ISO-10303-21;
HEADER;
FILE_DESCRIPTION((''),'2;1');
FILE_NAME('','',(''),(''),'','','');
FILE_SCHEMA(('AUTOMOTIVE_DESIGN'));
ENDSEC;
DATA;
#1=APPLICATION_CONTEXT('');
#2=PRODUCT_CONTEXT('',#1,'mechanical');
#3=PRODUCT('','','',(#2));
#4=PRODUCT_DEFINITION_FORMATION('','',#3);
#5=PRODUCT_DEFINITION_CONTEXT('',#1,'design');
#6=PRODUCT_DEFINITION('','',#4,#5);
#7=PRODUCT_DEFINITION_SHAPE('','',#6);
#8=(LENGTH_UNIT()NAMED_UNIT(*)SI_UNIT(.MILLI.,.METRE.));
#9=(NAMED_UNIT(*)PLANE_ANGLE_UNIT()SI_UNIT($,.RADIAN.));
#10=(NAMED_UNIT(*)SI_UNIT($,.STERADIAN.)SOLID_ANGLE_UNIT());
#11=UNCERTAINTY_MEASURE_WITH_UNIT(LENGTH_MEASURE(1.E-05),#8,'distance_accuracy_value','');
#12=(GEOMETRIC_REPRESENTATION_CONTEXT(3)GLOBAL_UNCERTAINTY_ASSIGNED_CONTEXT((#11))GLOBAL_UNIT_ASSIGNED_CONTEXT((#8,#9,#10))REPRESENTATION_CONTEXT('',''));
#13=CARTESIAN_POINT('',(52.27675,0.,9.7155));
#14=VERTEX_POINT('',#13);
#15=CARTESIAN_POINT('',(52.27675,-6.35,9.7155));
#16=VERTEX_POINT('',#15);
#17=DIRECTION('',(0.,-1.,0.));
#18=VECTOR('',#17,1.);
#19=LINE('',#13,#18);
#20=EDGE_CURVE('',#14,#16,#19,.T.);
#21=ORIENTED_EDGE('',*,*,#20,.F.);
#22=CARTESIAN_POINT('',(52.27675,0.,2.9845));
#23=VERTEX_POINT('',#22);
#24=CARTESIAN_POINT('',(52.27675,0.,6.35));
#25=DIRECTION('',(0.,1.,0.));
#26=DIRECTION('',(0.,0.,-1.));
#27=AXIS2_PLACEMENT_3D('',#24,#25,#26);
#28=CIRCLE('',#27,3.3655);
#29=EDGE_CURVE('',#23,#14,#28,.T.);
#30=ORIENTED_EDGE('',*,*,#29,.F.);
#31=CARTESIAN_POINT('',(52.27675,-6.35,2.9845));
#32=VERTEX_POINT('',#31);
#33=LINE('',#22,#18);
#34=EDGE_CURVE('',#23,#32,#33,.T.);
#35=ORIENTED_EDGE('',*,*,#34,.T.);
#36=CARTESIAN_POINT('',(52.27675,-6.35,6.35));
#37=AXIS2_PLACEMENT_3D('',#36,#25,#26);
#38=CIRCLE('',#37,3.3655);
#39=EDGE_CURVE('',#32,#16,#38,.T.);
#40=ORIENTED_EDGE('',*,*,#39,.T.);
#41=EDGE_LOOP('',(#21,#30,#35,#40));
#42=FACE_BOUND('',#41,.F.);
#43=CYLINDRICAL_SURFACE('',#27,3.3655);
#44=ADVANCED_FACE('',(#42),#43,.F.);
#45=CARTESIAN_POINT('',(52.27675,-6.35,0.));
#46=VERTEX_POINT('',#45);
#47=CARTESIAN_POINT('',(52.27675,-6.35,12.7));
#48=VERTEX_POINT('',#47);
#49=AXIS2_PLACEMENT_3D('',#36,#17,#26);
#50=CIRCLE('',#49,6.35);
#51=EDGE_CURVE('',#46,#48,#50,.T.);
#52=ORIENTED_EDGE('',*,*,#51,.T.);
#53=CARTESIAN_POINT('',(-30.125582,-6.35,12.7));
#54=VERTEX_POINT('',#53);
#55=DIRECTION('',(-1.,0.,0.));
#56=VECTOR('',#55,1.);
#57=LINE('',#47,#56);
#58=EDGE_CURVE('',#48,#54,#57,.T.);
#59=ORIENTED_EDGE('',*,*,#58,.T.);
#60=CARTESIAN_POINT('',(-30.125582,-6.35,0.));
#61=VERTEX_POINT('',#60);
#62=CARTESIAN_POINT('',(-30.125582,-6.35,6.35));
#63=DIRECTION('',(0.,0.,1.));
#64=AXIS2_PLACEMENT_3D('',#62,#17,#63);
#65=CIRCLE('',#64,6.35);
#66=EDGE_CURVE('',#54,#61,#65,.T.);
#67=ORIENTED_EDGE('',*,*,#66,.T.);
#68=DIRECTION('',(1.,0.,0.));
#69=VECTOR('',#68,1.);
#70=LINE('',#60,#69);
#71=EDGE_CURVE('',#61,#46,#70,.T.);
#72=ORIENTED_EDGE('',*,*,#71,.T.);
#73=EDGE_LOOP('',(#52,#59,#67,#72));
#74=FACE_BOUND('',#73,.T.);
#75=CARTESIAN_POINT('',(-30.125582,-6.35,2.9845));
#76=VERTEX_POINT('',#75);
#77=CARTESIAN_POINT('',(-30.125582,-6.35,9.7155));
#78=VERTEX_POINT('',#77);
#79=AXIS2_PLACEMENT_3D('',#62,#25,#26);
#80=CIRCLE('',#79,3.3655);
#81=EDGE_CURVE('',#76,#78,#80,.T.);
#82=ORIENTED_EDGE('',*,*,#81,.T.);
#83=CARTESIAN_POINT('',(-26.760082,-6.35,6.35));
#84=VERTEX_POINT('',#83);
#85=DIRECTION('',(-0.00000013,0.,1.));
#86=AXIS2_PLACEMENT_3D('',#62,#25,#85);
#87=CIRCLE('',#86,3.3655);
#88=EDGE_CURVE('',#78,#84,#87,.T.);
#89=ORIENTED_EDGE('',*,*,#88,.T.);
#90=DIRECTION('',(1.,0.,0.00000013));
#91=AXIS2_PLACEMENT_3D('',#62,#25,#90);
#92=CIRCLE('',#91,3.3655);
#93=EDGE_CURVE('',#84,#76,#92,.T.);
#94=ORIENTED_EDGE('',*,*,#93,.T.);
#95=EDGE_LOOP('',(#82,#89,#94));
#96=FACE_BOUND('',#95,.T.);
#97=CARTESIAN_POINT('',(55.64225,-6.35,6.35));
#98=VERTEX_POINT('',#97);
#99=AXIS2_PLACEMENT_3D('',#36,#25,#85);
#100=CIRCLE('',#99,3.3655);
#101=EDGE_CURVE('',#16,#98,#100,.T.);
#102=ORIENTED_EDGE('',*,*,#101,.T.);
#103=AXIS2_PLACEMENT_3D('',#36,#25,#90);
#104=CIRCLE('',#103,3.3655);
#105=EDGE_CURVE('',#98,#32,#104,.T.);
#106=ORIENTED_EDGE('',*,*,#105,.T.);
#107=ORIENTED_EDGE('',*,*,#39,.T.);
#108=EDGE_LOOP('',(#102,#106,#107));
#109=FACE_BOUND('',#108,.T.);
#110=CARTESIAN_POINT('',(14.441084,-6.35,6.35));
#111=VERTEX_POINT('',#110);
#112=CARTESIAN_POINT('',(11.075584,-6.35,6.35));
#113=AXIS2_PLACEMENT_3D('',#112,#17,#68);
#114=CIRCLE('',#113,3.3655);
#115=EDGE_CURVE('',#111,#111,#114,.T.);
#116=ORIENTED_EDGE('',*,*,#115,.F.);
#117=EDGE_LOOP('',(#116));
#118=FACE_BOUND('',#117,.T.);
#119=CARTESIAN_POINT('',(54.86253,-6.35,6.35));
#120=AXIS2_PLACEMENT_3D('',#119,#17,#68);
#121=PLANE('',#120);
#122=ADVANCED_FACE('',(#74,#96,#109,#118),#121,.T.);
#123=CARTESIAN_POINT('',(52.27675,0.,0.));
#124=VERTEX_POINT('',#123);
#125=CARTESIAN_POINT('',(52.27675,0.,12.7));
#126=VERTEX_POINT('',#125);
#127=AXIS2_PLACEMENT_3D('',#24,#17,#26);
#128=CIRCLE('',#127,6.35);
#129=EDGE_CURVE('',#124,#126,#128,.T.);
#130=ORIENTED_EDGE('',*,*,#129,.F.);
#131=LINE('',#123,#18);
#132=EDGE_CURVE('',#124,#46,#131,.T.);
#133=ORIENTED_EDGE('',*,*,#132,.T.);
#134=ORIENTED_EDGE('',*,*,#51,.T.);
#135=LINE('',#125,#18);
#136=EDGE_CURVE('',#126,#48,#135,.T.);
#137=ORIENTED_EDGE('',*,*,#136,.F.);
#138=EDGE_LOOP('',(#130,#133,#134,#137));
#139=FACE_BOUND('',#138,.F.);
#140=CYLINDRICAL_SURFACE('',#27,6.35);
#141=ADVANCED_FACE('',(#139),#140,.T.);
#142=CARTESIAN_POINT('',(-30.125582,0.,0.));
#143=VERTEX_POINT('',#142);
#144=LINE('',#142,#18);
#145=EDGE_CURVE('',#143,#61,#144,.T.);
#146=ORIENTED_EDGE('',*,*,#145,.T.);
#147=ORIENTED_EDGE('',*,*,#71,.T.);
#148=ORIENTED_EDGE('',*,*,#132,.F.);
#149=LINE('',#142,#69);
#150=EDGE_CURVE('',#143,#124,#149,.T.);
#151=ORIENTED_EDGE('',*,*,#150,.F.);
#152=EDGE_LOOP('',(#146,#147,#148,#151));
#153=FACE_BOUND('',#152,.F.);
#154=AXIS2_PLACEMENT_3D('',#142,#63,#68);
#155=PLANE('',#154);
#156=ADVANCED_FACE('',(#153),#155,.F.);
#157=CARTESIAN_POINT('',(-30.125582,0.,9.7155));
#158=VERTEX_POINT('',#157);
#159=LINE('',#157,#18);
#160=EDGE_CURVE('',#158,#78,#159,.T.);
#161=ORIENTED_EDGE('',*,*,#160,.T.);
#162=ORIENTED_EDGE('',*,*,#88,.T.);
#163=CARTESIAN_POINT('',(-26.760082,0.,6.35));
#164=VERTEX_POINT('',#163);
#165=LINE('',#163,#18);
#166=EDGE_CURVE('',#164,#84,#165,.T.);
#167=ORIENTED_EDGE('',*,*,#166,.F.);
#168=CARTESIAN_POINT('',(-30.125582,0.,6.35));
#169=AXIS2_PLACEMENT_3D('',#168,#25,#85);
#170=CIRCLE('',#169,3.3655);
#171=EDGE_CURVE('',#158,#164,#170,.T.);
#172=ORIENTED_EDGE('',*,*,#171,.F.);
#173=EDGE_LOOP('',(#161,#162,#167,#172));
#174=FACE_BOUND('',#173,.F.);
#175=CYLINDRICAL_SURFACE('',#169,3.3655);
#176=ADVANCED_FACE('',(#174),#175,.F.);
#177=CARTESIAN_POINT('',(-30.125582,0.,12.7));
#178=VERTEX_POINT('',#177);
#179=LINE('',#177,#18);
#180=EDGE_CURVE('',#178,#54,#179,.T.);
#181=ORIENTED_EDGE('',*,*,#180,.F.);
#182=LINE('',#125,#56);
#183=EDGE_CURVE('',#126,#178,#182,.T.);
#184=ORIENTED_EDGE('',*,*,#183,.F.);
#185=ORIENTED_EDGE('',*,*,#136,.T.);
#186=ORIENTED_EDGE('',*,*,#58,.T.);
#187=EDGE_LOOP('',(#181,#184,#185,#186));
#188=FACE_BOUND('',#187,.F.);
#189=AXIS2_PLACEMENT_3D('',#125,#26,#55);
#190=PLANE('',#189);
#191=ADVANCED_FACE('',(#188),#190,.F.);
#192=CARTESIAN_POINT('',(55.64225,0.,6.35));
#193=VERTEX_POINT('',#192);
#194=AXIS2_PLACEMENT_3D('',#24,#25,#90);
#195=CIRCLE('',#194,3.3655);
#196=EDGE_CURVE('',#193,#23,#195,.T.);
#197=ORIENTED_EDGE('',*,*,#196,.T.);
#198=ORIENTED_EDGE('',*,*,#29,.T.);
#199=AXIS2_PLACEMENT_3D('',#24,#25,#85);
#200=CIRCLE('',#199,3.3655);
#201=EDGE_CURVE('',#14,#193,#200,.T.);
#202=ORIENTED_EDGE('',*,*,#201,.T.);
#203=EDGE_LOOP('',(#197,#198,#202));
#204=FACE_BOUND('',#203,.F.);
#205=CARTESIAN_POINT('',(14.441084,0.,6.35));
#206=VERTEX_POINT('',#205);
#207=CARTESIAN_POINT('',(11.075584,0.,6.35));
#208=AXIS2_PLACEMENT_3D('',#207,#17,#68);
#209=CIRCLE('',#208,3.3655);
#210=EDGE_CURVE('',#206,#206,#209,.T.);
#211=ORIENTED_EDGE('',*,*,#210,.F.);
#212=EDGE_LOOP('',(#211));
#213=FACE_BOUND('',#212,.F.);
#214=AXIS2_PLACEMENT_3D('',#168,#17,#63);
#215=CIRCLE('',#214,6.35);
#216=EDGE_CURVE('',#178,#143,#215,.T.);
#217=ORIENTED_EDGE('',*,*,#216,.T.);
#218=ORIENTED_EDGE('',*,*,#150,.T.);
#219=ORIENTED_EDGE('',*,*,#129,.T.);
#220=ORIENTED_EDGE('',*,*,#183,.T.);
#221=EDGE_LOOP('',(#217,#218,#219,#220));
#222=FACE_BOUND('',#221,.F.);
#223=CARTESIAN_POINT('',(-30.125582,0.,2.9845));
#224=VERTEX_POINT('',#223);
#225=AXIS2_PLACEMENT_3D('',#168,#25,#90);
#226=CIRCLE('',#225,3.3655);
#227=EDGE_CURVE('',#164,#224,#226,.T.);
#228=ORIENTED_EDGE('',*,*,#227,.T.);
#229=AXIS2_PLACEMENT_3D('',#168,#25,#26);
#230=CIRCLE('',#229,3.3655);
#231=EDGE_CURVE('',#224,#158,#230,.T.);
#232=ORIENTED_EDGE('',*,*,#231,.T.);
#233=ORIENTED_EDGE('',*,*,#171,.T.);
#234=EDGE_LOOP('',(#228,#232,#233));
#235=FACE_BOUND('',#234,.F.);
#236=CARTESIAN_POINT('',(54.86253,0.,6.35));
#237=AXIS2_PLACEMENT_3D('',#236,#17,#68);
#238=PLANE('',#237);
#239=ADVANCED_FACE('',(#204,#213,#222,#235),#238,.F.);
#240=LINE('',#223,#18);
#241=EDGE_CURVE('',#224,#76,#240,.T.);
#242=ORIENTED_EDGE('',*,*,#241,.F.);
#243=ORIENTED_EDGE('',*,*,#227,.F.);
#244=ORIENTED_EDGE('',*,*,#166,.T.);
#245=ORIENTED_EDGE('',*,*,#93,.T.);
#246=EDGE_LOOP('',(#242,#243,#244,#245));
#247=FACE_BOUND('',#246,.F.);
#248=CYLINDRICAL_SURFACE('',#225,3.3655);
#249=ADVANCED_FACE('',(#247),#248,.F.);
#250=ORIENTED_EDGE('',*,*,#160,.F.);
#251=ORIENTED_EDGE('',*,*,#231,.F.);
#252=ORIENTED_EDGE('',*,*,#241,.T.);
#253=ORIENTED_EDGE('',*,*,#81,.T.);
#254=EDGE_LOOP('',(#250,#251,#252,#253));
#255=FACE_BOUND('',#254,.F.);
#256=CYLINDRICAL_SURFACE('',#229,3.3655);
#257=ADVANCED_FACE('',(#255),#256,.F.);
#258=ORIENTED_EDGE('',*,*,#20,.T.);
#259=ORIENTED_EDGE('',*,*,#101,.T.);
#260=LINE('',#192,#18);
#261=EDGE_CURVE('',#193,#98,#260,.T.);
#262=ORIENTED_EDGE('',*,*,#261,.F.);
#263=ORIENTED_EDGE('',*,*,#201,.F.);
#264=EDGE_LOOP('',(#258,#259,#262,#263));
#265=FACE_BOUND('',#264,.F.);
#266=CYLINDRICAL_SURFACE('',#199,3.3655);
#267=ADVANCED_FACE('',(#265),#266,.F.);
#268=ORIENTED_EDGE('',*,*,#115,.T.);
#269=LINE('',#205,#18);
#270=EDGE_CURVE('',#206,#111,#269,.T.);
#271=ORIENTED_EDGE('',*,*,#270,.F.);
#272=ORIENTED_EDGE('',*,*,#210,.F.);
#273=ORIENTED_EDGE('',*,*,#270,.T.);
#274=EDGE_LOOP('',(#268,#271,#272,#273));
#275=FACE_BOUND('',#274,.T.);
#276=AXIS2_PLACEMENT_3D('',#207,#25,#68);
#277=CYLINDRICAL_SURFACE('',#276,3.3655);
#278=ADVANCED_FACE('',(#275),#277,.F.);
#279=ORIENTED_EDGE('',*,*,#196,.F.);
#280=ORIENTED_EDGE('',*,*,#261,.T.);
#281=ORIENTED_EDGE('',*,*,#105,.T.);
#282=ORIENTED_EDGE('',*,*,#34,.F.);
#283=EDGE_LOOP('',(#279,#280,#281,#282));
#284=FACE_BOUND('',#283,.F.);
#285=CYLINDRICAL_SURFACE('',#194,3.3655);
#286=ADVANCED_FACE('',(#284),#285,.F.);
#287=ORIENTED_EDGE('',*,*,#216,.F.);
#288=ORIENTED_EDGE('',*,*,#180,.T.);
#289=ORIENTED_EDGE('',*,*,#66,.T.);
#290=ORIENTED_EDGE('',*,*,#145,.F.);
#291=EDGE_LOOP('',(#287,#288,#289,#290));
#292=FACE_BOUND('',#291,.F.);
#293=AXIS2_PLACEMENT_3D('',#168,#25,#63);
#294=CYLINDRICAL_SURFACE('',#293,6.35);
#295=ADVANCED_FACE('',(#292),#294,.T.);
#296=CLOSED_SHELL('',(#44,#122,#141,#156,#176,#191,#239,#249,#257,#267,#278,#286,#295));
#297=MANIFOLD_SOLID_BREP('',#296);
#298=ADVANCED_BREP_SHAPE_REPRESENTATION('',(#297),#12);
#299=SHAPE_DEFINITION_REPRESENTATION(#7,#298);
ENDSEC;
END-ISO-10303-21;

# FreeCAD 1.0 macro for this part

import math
import FreeCAD as App
import Part
import Sketcher
from FreeCAD import Vector
Q = App.Units.Quantity

doc = App.newDocument("Part")
body = doc.addObject("PartDesign::Body", "Body")

# Sketch on XZ plane
sketch1 = doc.addObject("Sketcher::SketchObject", "Sketch")
body.addObject(sketch1)
sketch1.AttachmentSupport = (doc.XZ_Plane, [""])
sketch1.MapMode = "FlatFace"
sketch1.addGeometry([
    Part.ArcOfCircle(Part.Circle(Vector(52.27675, 6.35, 0), Vector(0, 0, 1), 6.35), math.radians(-90), math.radians(90)),  # 0
    Part.LineSegment(Vector(52.27675, 12.7, 0), Vector(-30.125582, 12.7, 0)),  # 1
    Part.ArcOfCircle(Part.Circle(Vector(-30.125582, 6.35, 0), Vector(0, 0, 1), 6.35), math.radians(90), math.radians(270)),  # 2
    Part.LineSegment(Vector(-30.125582, 0, 0), Vector(52.27675, 0, 0)),  # 3
    Part.ArcOfCircle(Part.Circle(Vector(-30.125582, 6.35, 0), Vector(0, 0, 1), 3.3655), math.radians(-90.000007), math.radians(0.000007)),  # 4
    Part.ArcOfCircle(Part.Circle(Vector(-30.125582, 6.35, 0), Vector(0, 0, 1), 3.3655), math.radians(90), math.radians(270)),  # 5
    Part.ArcOfCircle(Part.Circle(Vector(-30.125582, 6.35, 0), Vector(0, 0, 1), 3.3655), math.radians(-0.000007), math.radians(90.000007)),  # 6
    Part.Circle(Vector(11.075584, 6.35, 0), Vector(0, 0, 1), 3.3655),  # 7
    Part.ArcOfCircle(Part.Circle(Vector(52.27675, 6.35, 0), Vector(0, 0, 1), 3.3655), math.radians(-0.000007), math.radians(90.000007)),  # 8
    Part.ArcOfCircle(Part.Circle(Vector(52.27675, 6.35, 0), Vector(0, 0, 1), 3.3655), math.radians(-90.000007), math.radians(0.000007)),  # 9
    Part.ArcOfCircle(Part.Circle(Vector(52.27675, 6.35, 0), Vector(0, 0, 1), 3.3655), math.radians(90), math.radians(270)),  # 10
], False)
sketch1.addConstraint([
    Sketcher.Constraint("Tangent", 0, 2, 1, 1),
    Sketcher.Constraint("Tangent", 1, 2, 2, 1),
    Sketcher.Constraint("Tangent", 2, 2, 3, 1),
    Sketcher.Constraint("Tangent", 3, 2, 0, 1),
    Sketcher.Constraint("Tangent", 4, 1, 5, 2),
    Sketcher.Constraint("Tangent", 5, 1, 6, 2),
    Sketcher.Constraint("Tangent", 6, 1, 4, 2),
    Sketcher.Constraint("Tangent", 8, 1, 9, 2),
    Sketcher.Constraint("Tangent", 9, 1, 10, 2),
    Sketcher.Constraint("Tangent", 10, 1, 8, 2),
    Sketcher.Constraint("Horizontal", 1),
    Sketcher.Constraint("Horizontal", 3),
    Sketcher.Constraint("Coincident", 4, 3, 2, 3),
    Sketcher.Constraint("Coincident", 8, 3, 0, 3),
    Sketcher.Constraint("Equal", 6, 7),
    Sketcher.Constraint("Equal", 7, 8),
    Sketcher.Constraint("PointOnObject", 2, 2, -1),
    Sketcher.Constraint("Horizontal", 6, 3, 7, 3),
    Sketcher.Constraint("Horizontal", 10, 3, 6, 1),
    Sketcher.Constraint("Horizontal", 6, 1, 8, 1),
    Sketcher.Constraint("Vertical", 2, 2, 4, 1),
    Sketcher.Constraint("Vertical", 4, 1, 5, 1),
    Sketcher.Constraint("Vertical", 3, 2, 9, 1),
    Sketcher.Constraint("Vertical", 9, 1, 10, 1),
    Sketcher.Constraint("Radius", 0, Q("0.25 in")),
    Sketcher.Constraint("Diameter", 7, Q("0.265 in")),
    Sketcher.Constraint("DistanceX", 1, 2, 1, 1, Q("82.402332 mm")),
    Sketcher.Constraint("DistanceX", -1, 1, 0, 3, Q("52.27675 mm")),
    Sketcher.Constraint("DistanceX", -1, 1, 7, 3, Q("11.075584 mm")),
])
pad1 = doc.addObject("PartDesign::Pad", "Pad")
body.addObject(pad1)
pad1.Profile = sketch1
pad1.Length = Q("0.25 in")

doc.recompute()
